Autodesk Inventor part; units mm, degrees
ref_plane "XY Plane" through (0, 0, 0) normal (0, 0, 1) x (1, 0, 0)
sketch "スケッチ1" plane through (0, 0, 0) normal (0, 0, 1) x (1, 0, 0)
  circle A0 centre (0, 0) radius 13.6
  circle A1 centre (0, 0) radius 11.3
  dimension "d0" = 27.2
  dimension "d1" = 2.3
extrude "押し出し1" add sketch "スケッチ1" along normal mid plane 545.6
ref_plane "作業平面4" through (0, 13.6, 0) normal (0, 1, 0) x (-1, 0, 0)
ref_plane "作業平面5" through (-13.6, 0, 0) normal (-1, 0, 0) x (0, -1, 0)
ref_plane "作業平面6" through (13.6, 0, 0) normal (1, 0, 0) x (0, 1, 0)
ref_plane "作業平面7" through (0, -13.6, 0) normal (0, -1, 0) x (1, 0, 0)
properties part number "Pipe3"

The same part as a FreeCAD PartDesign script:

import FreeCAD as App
import Part
import Sketcher

V = App.Vector

doc = App.newDocument("Part")
body = doc.addObject("PartDesign::Body", "Body")

# Sketch on XY plane
sketch1 = body.newObject("Sketcher::SketchObject", "Sketch")
sketch1.AttachmentSupport = (doc.getObject("XY_Plane"), [""])
sketch1.MapMode = "FlatFace"
sketch1.addGeometry([
    Part.Circle(V(0, 0, 0), V(0, 0, 1), 13.6),
    Part.Circle(V(0, 0, 0), V(0, 0, 1), 11.3),
], False)
sketch1.addConstraint([
    Sketcher.Constraint("Coincident", 0, 3, -1, 1),
    Sketcher.Constraint("Coincident", 1, 3, -1, 1),
    Sketcher.Constraint("Diameter", 0, 27.2),
    Sketcher.Constraint("Diameter", 1, 22.6),
])
pad1 = body.newObject("PartDesign::Pad", "Pad")
pad1.Profile = sketch1
pad1.Length = 545.6
pad1.Midplane = True

doc.recompute()
